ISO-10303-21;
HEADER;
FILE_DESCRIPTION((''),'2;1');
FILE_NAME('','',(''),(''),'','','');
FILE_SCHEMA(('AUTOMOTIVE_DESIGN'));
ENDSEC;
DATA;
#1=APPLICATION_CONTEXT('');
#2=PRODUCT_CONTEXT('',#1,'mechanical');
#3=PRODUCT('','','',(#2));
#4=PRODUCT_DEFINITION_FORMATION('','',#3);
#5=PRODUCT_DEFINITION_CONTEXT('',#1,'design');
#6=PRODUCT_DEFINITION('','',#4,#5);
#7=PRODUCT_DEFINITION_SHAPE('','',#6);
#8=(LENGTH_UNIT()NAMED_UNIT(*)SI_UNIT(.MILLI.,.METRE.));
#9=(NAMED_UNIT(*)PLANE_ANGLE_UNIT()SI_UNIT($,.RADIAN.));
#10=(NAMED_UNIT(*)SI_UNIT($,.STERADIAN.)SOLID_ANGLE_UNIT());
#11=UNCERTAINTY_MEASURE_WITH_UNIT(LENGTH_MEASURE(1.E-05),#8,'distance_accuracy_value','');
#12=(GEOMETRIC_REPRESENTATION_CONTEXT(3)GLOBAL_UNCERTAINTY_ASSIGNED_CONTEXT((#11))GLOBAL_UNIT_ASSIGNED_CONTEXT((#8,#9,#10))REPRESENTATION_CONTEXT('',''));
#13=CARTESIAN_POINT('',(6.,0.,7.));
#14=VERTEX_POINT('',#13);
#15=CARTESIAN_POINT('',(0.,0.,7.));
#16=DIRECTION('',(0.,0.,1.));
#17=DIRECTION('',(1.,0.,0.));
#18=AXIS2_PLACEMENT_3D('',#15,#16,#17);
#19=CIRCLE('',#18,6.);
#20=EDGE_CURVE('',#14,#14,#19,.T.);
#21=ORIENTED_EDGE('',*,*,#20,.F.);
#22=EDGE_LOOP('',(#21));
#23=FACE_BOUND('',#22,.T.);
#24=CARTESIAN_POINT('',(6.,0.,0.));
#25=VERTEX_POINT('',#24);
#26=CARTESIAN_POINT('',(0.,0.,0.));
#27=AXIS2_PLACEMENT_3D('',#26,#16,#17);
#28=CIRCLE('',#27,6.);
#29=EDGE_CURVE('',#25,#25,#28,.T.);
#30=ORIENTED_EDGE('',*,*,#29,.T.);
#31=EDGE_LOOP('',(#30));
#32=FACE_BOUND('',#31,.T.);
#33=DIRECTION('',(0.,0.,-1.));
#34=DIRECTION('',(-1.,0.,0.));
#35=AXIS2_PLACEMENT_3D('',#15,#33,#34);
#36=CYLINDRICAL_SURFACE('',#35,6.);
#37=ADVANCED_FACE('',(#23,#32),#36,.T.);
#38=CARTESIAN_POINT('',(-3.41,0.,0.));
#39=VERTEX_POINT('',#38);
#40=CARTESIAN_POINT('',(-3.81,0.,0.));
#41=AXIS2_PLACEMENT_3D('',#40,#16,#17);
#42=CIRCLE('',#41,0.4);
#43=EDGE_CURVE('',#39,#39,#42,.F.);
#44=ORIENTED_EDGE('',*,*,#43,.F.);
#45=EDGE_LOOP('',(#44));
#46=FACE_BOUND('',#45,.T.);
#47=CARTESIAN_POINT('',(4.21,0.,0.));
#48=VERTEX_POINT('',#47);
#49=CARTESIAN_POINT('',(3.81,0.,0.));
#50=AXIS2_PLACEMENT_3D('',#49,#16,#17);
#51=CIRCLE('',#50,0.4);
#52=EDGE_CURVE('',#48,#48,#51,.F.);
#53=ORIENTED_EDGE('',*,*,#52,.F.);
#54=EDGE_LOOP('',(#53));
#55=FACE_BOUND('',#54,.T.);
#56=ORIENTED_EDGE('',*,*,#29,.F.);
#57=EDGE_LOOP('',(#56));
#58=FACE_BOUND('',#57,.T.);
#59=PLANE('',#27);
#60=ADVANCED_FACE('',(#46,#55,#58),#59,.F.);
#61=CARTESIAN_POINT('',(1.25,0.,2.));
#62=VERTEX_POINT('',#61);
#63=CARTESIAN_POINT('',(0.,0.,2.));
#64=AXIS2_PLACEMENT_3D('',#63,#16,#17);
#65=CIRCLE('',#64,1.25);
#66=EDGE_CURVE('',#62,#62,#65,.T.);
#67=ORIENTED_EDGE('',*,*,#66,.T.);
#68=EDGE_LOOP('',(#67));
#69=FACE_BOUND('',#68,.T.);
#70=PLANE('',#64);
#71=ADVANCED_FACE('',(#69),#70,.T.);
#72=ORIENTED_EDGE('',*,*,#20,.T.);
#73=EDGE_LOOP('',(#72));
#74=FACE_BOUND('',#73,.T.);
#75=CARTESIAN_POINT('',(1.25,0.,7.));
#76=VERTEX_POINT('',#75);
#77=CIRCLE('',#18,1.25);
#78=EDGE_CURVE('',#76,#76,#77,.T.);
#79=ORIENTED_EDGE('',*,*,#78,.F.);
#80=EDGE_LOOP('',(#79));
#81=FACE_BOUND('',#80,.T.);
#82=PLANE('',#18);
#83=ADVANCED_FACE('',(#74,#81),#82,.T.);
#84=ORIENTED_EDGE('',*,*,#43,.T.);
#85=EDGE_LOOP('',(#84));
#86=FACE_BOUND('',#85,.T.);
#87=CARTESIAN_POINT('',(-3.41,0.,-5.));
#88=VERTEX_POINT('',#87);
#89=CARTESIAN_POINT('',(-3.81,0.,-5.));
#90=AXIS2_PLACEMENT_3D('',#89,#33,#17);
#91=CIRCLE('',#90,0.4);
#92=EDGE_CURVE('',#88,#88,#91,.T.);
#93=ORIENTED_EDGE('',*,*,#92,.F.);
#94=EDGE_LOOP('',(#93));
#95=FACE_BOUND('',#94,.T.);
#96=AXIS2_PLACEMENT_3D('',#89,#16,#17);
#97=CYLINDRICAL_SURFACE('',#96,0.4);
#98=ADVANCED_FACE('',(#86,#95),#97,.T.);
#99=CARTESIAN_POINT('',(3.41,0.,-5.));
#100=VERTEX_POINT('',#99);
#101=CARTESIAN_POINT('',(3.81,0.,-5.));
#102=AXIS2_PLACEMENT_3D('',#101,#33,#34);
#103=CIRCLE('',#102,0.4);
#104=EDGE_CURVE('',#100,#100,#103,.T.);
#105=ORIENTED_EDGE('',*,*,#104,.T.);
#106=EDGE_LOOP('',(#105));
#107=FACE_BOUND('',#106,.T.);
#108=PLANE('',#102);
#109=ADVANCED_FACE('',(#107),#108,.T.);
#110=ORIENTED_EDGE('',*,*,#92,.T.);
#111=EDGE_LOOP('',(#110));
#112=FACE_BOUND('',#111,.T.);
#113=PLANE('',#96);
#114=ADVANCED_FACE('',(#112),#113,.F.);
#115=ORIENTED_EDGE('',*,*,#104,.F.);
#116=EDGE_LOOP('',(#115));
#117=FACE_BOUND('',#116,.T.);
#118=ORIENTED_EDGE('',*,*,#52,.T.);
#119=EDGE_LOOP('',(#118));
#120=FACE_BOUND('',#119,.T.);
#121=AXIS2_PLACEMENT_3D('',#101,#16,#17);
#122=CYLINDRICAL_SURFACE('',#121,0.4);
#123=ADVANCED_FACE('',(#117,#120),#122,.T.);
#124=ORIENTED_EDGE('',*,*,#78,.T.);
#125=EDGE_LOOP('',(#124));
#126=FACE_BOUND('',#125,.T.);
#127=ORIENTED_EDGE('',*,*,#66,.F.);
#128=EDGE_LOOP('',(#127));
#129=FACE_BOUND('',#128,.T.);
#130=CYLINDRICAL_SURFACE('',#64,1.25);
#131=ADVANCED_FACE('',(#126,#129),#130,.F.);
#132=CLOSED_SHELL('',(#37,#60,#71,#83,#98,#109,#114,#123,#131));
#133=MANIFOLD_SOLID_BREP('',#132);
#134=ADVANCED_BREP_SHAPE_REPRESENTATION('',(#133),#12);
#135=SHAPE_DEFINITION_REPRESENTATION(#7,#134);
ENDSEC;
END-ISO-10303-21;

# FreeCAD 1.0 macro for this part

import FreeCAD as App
import Part
import Sketcher
Q = App.Units.Quantity

doc = App.newDocument("Part")
body = doc.addObject("PartDesign::Body", "Body")

sketch1 = body.newObject("Sketcher::SketchObject", "Sketch")
sketch1.AttachmentSupport = (doc.getObject("XY_Plane"), [""])
sketch1.MapMode = "FlatFace"
sketch1.addGeometry(Part.Circle(App.Vector(0, 0, 0), App.Vector(0, 0, 1), 6), False)
sketch1.addConstraint([
    Sketcher.Constraint("Coincident", 0, 3, -1, 1),
    Sketcher.Constraint("Diameter", 0, Q("12 mm")),
])
pad1 = body.newObject("PartDesign::Pad", "Pad")
pad1.Profile = sketch1
pad1.Length = 7

sketch2 = body.newObject("Sketcher::SketchObject", "Sketch001")
sketch2.AttachmentSupport = (doc.getObject("XY_Plane"), [""])
sketch2.MapMode = "FlatFace"
sketch2.addGeometry([
    Part.Circle(App.Vector(3.81, 0, 0), App.Vector(0, 0, 1), 0.4),
    Part.Circle(App.Vector(-3.81, 0, 0), App.Vector(0, 0, 1), 0.4),
], False)
sketch2.addConstraint([
    Sketcher.Constraint("Equal", 0, 1),
    Sketcher.Constraint("Symmetric", 0, 3, 1, 3, -1, 1),
    Sketcher.Constraint("PointOnObject", 0, 3, -1),
    Sketcher.Constraint("Diameter", 0, Q("0.8 mm")),
    Sketcher.Constraint("DistanceX", -1, 1, 0, 3, Q("3.81 mm")),
])
pad2 = body.newObject("PartDesign::Pad", "Pad001")
pad2.Profile = sketch2
pad2.Length = 5
pad2.Reversed = True

sketch3 = body.newObject("Sketcher::SketchObject", "Sketch002")
sketch3.AttachmentSupport = (doc.getObject("XY_Plane"), [""])
sketch3.MapMode = "FlatFace"
sketch3.AttachmentOffset = App.Placement(App.Vector(0, 0, 7), App.Rotation())
sketch3.addGeometry(Part.Circle(App.Vector(0, 0, 0), App.Vector(0, 0, 1), 1.2), False)
sketch3.addConstraint([
    Sketcher.Constraint("Coincident", 0, 3, -1, 1),
    Sketcher.Constraint("Diameter", 0, Q("2.5 mm")),
])
pocket1 = body.newObject("PartDesign::Pocket", "Pocket")
pocket1.Profile = sketch3
pocket1.Length = 5

doc.recompute()
